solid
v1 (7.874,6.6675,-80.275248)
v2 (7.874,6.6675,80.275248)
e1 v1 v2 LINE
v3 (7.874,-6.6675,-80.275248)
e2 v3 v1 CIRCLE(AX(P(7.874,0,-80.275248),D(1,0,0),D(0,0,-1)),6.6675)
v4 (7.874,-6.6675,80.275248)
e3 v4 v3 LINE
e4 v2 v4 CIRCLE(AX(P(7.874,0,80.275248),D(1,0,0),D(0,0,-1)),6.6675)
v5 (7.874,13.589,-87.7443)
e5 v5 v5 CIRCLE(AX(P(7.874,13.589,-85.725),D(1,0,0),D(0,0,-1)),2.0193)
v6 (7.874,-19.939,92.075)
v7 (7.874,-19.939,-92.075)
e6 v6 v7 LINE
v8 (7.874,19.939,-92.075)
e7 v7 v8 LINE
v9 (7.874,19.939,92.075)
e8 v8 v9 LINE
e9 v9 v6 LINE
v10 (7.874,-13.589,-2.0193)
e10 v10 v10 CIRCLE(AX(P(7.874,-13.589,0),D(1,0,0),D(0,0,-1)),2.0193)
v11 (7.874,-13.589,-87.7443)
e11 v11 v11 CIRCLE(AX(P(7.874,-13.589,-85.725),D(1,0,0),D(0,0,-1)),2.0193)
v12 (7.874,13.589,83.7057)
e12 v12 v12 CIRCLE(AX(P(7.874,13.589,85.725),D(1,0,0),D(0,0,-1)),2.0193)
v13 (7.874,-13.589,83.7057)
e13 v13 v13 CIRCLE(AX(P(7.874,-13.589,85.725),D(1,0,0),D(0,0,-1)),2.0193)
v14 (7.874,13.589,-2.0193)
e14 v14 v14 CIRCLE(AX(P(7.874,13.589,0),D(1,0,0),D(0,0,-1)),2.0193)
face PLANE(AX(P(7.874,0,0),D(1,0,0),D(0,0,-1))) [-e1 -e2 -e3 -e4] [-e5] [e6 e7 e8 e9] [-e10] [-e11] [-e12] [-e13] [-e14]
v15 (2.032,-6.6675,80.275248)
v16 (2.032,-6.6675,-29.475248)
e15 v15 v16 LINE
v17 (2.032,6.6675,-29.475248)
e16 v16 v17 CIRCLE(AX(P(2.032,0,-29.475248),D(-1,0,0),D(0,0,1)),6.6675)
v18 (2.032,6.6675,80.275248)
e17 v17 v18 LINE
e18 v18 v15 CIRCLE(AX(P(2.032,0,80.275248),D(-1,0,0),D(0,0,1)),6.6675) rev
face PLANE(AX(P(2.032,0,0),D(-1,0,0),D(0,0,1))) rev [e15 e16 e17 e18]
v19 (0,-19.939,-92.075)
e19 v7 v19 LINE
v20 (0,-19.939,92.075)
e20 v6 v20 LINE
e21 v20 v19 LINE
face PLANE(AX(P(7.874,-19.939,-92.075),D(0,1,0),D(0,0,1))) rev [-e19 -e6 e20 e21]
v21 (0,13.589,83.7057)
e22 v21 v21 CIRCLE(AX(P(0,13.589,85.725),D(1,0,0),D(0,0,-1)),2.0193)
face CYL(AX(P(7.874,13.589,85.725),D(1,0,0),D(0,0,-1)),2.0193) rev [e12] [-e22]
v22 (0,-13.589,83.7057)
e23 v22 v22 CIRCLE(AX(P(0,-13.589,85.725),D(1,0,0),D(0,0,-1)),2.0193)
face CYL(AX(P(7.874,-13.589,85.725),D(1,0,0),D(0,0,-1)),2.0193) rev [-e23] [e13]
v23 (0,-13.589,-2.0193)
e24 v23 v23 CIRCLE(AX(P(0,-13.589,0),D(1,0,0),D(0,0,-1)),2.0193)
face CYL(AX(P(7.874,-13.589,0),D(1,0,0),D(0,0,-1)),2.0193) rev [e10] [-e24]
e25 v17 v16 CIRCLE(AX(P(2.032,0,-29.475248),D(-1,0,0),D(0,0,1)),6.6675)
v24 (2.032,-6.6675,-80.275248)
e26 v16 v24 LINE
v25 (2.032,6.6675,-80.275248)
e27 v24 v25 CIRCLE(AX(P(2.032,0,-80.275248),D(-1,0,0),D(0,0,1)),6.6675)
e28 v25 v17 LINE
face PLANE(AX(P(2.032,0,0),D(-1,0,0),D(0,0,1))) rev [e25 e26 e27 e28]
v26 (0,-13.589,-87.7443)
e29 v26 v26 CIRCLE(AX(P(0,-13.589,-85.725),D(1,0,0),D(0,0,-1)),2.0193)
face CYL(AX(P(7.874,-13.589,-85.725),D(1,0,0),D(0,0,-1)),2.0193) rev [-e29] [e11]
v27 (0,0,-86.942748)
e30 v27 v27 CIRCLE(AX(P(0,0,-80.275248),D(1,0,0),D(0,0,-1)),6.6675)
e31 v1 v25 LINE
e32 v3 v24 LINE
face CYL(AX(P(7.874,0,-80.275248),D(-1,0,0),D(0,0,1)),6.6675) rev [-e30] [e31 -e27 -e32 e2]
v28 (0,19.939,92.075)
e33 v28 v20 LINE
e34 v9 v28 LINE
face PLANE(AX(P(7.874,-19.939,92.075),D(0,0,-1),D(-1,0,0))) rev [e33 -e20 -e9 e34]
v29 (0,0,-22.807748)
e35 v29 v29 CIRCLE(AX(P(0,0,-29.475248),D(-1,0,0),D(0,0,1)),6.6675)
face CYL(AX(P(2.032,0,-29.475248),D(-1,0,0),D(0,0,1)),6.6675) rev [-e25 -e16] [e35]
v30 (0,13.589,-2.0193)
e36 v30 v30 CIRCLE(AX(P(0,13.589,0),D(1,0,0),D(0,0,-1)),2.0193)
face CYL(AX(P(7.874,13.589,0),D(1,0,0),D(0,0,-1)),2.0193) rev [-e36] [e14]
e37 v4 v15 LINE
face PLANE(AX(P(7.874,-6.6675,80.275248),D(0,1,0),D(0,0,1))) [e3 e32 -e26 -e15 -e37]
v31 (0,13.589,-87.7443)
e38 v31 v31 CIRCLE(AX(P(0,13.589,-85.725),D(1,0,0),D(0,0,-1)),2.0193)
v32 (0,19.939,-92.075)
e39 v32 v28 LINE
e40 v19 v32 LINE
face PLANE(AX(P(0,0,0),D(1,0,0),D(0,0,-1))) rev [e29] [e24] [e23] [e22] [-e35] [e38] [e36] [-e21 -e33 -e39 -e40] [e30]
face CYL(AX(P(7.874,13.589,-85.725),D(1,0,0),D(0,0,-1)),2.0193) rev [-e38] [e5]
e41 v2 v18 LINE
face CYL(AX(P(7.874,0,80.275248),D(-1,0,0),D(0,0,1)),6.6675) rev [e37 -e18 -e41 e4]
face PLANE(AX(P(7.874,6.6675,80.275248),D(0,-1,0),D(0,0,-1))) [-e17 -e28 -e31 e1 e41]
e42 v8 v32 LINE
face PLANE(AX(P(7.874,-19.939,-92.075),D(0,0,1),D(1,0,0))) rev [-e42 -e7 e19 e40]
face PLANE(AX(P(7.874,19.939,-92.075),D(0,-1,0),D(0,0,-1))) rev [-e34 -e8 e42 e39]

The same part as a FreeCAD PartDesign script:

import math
import FreeCAD as App
import Part
import Sketcher
from FreeCAD import Vector
Q = App.Units.Quantity

doc = App.newDocument("Part")
params = doc.addObject("Spreadsheet::Sheet", "Params")
for row, (alias, value) in enumerate([
    ("sketch1_width", "1.57 in"),
    ("sketch1_height", "7.25 in"),
    ("pad1_length", "0.31 in"),
    ("sketch2_diameter", "0.159 in"),
    ("hole_diameter", "0.159 in"),
    ("sketch3_height", "2 in"),
    ("pad2_length", "0.08 in"),
], start=1):
    params.set(f"A{row}", alias)
    params.set(f"B{row}", "=" + value)
    params.setAlias(f"B{row}", alias)

body = doc.addObject("PartDesign::Body", "Body")

# Sketch on YZ plane
sketch1 = body.newObject("Sketcher::SketchObject", "Sketch")
sketch1.AttachmentSupport = (doc.getObject("YZ_Plane"), [""])
sketch1.MapMode = "FlatFace"
sketch1.addGeometry([
    Part.LineSegment(Vector(19.939, 92.075, 0), Vector(-19.939, 92.075, 0)),  # 0
    Part.LineSegment(Vector(-19.939, 92.075, 0), Vector(-19.939, -92.075, 0)),  # 1
    Part.LineSegment(Vector(-19.939, -92.075, 0), Vector(19.939, -92.075, 0)),  # 2
    Part.LineSegment(Vector(19.939, -92.075, 0), Vector(19.939, 92.075, 0)),  # 3
    Part.ArcOfCircle(Part.Circle(Vector(0, 80.275248, 0), Vector(0, 0, 1), 6.6675), math.radians(0), math.radians(180)),  # 4
    Part.LineSegment(Vector(6.6675, 80.275248, 0), Vector(6.6675, -80.275248, 0)),  # 5
    Part.ArcOfCircle(Part.Circle(Vector(0, -80.275248, 0), Vector(0, 0, 1), 6.6675), math.radians(180), math.radians(360)),  # 6
    Part.LineSegment(Vector(-6.6675, -80.275248, 0), Vector(-6.6675, 80.275248, 0)),  # 7
], False)
sketch1.addConstraint([
    Sketcher.Constraint("Coincident", 0, 2, 1, 1),
    Sketcher.Constraint("Coincident", 1, 2, 2, 1),
    Sketcher.Constraint("Coincident", 2, 2, 3, 1),
    Sketcher.Constraint("Coincident", 3, 2, 0, 1),
    Sketcher.Constraint("Tangent", 4, 1, 5, 1),
    Sketcher.Constraint("Tangent", 5, 2, 6, 2),
    Sketcher.Constraint("Tangent", 6, 1, 7, 1),
    Sketcher.Constraint("Tangent", 7, 2, 4, 2),
    Sketcher.Constraint("Horizontal", 0),
    Sketcher.Constraint("Vertical", 1),
    Sketcher.Constraint("Horizontal", 2),
    Sketcher.Constraint("Vertical", 3),
    Sketcher.Constraint("Vertical", 5),
    Sketcher.Constraint("Vertical", 7),
    Sketcher.Constraint("Symmetric", 4, 3, 6, 3, -1, 1),
    Sketcher.Constraint("Symmetric", 0, 2, 2, 2, -1, 1),
    Sketcher.Constraint("DistanceX", 0, 2, 0, 1, Q("1.57 in")),
    Sketcher.Constraint("DistanceY", 1, 2, 1, 1, Q("7.25 in")),
    Sketcher.Constraint("Radius", 4, Q("0.2625 in")),
    Sketcher.Constraint("DistanceY", 5, 2, 5, 1, 160.550497),
])
sketch1.setExpression("Constraints[16]", "Params.sketch1_width")
sketch1.setExpression("Constraints[17]", "Params.sketch1_height")
pad1 = body.newObject("PartDesign::Pad", "Pad")
pad1.Profile = sketch1
pad1.setExpression("Length", "Params.pad1_length")

# Sketch on YZ plane
sketch2 = body.newObject("Sketcher::SketchObject", "Sketch001")
sketch2.AttachmentSupport = (doc.getObject("YZ_Plane"), [""])
sketch2.MapMode = "FlatFace"
sketch2.AttachmentOffset = App.Placement(Vector(0, 0, 0.31 * 25.4), App.Rotation())
sketch2.addGeometry([
    Part.Circle(Vector(13.589, 85.725, 0), Vector(0, 0, 1), 2.0193),  # 0
    Part.Circle(Vector(-13.589, 85.725, 0), Vector(0, 0, 1), 2.0193),  # 1
    Part.Circle(Vector(-13.589, 0, 0), Vector(0, 0, 1), 2.0193),  # 2
    Part.Circle(Vector(-13.589, -85.725, 0), Vector(0, 0, 1), 2.0193),  # 3
    Part.Circle(Vector(13.589, -85.725, 0), Vector(0, 0, 1), 2.0193),  # 4
    Part.Circle(Vector(13.589, 0, 0), Vector(0, 0, 1), 2.0193),  # 5
], False)
sketch2.addConstraint([
    Sketcher.Constraint("Equal", 0, 1),
    Sketcher.Constraint("Equal", 1, 2),
    Sketcher.Constraint("Equal", 2, 3),
    Sketcher.Constraint("Equal", 3, 4),
    Sketcher.Constraint("Equal", 4, 5),
    Sketcher.Constraint("Symmetric", 0, 3, 3, 3, -1, 1),
    Sketcher.Constraint("Symmetric", 1, 3, 4, 3, -1, 1),
    Sketcher.Constraint("Symmetric", 2, 3, 5, 3, -1, 1),
    Sketcher.Constraint("Symmetric", 0, 3, 1, 3, -2),
    Sketcher.Constraint("PointOnObject", 2, 3, -1),
    Sketcher.Constraint("Vertical", 1, 3, 2, 3),
    Sketcher.Constraint("Diameter", 0, Q("0.159 in")),
    Sketcher.Constraint("DistanceX", 1, 3, 0, 3, Q("1.07 in")),
    Sketcher.Constraint("DistanceY", 3, 3, 1, 3, Q("6.75 in")),
])
sketch2.setExpression("Constraints[11]", "Params.sketch2_diameter")
doc.recompute()
hole = body.newObject("PartDesign::Hole", "Hole")
hole.Profile = sketch2
hole.ThreadType = "None"
hole.setExpression("Diameter", "Params.hole_diameter")
hole.DepthType = "ThroughAll"

# Sketch on YZ plane
sketch3 = body.newObject("Sketcher::SketchObject", "Sketch002")
sketch3.AttachmentSupport = (doc.getObject("YZ_Plane"), [""])
sketch3.MapMode = "FlatFace"
sketch3.addGeometry([
    Part.ArcOfCircle(Part.Circle(Vector(0, -80.275248, 0), Vector(0, 0, 1), 6.6675), math.radians(0), math.radians(180)),  # 0
    Part.LineSegment(Vector(-6.6675, -80.275248, 0), Vector(-6.6675, -29.475248, 0)),  # 1
    Part.ArcOfCircle(Part.Circle(Vector(0, -29.475248, 0), Vector(0, 0, 1), 6.6675), math.radians(180), math.radians(360)),  # 2
    Part.LineSegment(Vector(6.6675, -29.475248, 0), Vector(6.6675, -80.275248, 0)),  # 3
    Part.ArcOfCircle(Part.Circle(Vector(0, -29.475248, 0), Vector(0, 0, 1), 6.6675), math.radians(90), math.radians(180)),  # 4
    Part.LineSegment(Vector(-6.6675, -29.475248, 0), Vector(-6.6675, 80.275248, 0)),  # 5
    Part.ArcOfCircle(Part.Circle(Vector(0, 80.275248, 0), Vector(0, 0, 1), 6.6675), math.radians(0), math.radians(180)),  # 6
    Part.LineSegment(Vector(6.6675, 80.275248, 0), Vector(6.6675, -29.475248, 0)),  # 7
    Part.ArcOfCircle(Part.Circle(Vector(0, -29.475248, 0), Vector(0, 0, 1), 6.6675), math.radians(0), math.radians(90)),  # 8
], False)
sketch3.addConstraint([
    Sketcher.Constraint("Tangent", 0, 2, 1, 1),
    Sketcher.Constraint("Tangent", 1, 2, 2, 1),
    Sketcher.Constraint("Tangent", 2, 2, 3, 1),
    Sketcher.Constraint("Tangent", 3, 2, 0, 1),
    Sketcher.Constraint("Tangent", 4, 2, 5, 1),
    Sketcher.Constraint("Tangent", 5, 2, 6, 2),
    Sketcher.Constraint("Tangent", 6, 1, 7, 1),
    Sketcher.Constraint("Tangent", 7, 2, 8, 1),
    Sketcher.Constraint("Tangent", 8, 2, 4, 1),
    Sketcher.Constraint("Vertical", 1),
    Sketcher.Constraint("Vertical", 3),
    Sketcher.Constraint("Vertical", 5),
    Sketcher.Constraint("Vertical", 7),
    Sketcher.Constraint("Coincident", 4, 3, 2, 3),
    Sketcher.Constraint("Coincident", 7, 2, 2, 2),
    Sketcher.Constraint("Symmetric", 0, 3, 6, 3, -1, 1),
    Sketcher.Constraint("PointOnObject", 8, 2, -2),
    Sketcher.Constraint("DistanceY", 1, 1, 1, 2, Q("2 in")),
    Sketcher.Constraint("Radius", 0, Q("0.2625 in")),
    Sketcher.Constraint("DistanceY", 5, 1, 5, 2, 109.750497),
])
sketch3.setExpression("Constraints[17]", "Params.sketch3_height")
pad2 = body.newObject("PartDesign::Pad", "Pad001")
pad2.Profile = sketch3
pad2.setExpression("Length", "Params.pad2_length")

doc.recompute()
